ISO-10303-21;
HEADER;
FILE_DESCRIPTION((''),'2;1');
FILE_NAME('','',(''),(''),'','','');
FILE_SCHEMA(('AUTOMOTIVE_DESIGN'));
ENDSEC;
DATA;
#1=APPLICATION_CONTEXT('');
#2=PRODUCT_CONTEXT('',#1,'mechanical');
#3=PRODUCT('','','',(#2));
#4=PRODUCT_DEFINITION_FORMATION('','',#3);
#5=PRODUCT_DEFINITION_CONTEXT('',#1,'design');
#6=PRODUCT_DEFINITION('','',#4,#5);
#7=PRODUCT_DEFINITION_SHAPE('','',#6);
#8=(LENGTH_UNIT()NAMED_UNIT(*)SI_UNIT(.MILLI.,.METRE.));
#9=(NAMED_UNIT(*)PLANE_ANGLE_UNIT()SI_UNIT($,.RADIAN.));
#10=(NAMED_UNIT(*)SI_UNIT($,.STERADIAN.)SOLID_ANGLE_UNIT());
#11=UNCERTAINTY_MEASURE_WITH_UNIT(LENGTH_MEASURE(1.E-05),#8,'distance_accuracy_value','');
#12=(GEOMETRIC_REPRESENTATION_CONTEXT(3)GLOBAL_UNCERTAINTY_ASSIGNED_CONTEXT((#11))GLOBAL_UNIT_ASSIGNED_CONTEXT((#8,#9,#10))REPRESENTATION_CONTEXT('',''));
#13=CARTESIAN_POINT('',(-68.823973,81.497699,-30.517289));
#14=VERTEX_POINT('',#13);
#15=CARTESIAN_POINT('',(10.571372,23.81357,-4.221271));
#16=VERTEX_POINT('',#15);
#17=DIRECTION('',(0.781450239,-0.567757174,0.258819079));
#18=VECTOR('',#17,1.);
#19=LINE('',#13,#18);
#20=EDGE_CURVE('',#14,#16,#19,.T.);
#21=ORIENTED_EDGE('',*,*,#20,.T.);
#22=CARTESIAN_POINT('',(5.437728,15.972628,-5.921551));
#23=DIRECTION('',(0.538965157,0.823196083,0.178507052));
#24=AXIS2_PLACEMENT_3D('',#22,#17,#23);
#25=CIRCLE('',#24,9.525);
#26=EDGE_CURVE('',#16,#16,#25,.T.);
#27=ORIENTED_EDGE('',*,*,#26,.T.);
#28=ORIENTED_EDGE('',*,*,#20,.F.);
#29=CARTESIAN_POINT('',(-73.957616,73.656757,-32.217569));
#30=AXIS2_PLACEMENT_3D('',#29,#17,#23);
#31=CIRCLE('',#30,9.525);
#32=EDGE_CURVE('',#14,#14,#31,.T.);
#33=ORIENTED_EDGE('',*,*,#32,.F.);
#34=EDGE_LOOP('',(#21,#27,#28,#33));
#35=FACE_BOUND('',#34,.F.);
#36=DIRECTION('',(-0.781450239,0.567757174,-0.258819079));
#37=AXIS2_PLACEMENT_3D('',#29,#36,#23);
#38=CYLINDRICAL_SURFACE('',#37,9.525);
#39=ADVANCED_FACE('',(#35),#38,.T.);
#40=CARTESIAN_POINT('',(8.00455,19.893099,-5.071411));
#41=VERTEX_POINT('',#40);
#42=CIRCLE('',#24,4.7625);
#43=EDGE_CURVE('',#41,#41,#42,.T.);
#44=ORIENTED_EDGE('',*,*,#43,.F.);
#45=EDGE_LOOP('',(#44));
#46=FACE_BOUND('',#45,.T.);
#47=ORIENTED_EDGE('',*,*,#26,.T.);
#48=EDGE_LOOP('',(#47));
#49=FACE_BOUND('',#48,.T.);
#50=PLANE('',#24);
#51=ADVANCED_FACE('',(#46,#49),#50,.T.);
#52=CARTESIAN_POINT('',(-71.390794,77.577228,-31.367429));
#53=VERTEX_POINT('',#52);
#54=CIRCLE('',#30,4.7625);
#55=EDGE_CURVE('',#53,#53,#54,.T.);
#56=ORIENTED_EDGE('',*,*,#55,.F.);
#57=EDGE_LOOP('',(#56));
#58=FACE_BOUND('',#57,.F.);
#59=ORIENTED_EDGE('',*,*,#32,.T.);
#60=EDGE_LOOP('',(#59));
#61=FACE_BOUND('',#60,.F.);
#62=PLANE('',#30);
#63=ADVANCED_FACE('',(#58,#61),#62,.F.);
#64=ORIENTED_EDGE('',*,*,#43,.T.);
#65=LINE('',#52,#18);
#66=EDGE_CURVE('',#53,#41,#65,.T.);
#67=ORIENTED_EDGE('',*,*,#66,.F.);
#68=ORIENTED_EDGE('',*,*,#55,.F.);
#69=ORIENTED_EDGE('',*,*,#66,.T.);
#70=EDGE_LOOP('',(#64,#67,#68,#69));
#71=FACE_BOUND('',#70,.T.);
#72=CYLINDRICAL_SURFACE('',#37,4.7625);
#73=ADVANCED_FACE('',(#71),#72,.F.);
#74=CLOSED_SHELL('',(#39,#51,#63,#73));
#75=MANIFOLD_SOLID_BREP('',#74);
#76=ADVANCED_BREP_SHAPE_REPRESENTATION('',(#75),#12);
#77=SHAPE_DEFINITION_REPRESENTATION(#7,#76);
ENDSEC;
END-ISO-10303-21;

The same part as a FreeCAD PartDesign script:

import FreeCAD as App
import Part
import Sketcher

V = App.Vector
Q = App.Units.Quantity

doc = App.newDocument("Part")
body = doc.addObject("PartDesign::Body", "Body")

# Sketch on an angled plane
sketch1 = body.newObject("Sketcher::SketchObject", "Sketch")
sketch1.Placement = App.Placement(V(-84.359033, 61.290425, -27.94), App.Rotation(V(0.538965157, 0.823196083, 0.178507052), V(-0.314407511, 0.000000087, 0.94928811), V(0.781450239, -0.567757174, 0.258819079), "ZXY"))
sketch1.addGeometry([
    Part.Circle(V(15.022341, -7.330928, 0), V(0, 0, 1), 9.525),
    Part.Circle(V(15.022341, -7.330928, 0), V(0, 0, 1), 4.7625),
], False)
sketch1.addConstraint([
    Sketcher.Constraint("Coincident", 1, 3, 0, 3),
    Sketcher.Constraint("Diameter", 0, Q("0.75 in")),
    Sketcher.Constraint("Diameter", 1, Q("0.375 in")),
    Sketcher.Constraint("DistanceX", -1, 1, 0, 3, 15.022341),
    Sketcher.Constraint("DistanceY", 0, 3, -1, 1, 7.330928),
])
pad1 = body.newObject("PartDesign::Pad", "Pad")
pad1.Profile = sketch1
pad1.Length = Q("4 in")

doc.recompute()
